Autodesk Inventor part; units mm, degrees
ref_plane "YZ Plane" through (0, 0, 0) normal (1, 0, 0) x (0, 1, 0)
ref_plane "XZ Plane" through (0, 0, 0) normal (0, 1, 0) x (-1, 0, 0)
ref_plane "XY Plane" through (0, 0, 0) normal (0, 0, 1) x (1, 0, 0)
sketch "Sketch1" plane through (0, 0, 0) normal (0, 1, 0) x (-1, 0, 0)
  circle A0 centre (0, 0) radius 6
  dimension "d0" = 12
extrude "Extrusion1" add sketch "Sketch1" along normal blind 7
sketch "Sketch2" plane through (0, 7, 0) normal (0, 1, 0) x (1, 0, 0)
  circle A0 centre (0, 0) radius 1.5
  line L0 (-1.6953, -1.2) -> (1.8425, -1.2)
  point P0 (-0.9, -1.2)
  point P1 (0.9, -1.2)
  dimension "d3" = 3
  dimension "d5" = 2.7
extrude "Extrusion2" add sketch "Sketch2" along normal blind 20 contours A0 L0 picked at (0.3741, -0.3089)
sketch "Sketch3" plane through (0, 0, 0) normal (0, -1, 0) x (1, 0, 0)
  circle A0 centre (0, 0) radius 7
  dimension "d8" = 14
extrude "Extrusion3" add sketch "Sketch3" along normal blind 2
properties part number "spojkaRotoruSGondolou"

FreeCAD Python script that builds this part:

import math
import FreeCAD as App
import Part
import Sketcher

V = App.Vector

doc = App.newDocument("Part")
body = doc.addObject("PartDesign::Body", "Body")

# Sketch on XZ plane
sketch1 = doc.addObject("Sketcher::SketchObject", "Sketch")
body.addObject(sketch1)
sketch1.AttachmentSupport = (doc.XZ_Plane, [""])
sketch1.MapMode = "FlatFace"
sketch1.addGeometry(Part.Circle(V(0, 0, 0), V(0, 0, 1), 6), False)
sketch1.addConstraint(Sketcher.Constraint("Coincident", 0, 3, -1, 1))
sketch1.addConstraint(Sketcher.Constraint("Diameter", 0, 12.0))
pad1 = doc.addObject("PartDesign::Pad", "Pad")
body.addObject(pad1)
pad1.Profile = sketch1
pad1.Length = 7
pad1.Reversed = True

# Sketch on XZ plane
sketch2 = doc.addObject("Sketcher::SketchObject", "Sketch001")
body.addObject(sketch2)
sketch2.AttachmentSupport = (doc.XZ_Plane, [""])
sketch2.MapMode = "FlatFace"
sketch2.AttachmentOffset = App.Placement(V(0, 0, -7), App.Rotation())
sketch2.addGeometry(Part.ArcOfCircle(Part.Circle(V(0, 0, 0), V(0, 0, 1), 1.5), math.radians(127), math.radians(413)), False)
sketch2.addGeometry(Part.LineSegment(V(-0.9, 1.2, 0), V(0.9, 1.2, 0)), False)
sketch2.addConstraint(Sketcher.Constraint("Coincident", 0, 1, 1, 1))
sketch2.addConstraint(Sketcher.Constraint("Coincident", 1, 2, 0, 2))
sketch2.addConstraint(Sketcher.Constraint("Horizontal", 1))
sketch2.addConstraint(Sketcher.Constraint("Coincident", 0, 3, -1, 1))
sketch2.addConstraint(Sketcher.Constraint("Radius", 0, 1.5))
sketch2.addConstraint(Sketcher.Constraint("DistanceX", 1, 1, 1, 2, 1.8))
pad2 = doc.addObject("PartDesign::Pad", "Pad001")
body.addObject(pad2)
pad2.Profile = sketch2
pad2.Length = 20
pad2.Reversed = True

# Sketch on XZ plane
sketch3 = doc.addObject("Sketcher::SketchObject", "Sketch002")
body.addObject(sketch3)
sketch3.AttachmentSupport = (doc.XZ_Plane, [""])
sketch3.MapMode = "FlatFace"
sketch3.addGeometry(Part.Circle(V(0, 0, 0), V(0, 0, 1), 7), False)
sketch3.addConstraint(Sketcher.Constraint("Coincident", 0, 3, -1, 1))
sketch3.addConstraint(Sketcher.Constraint("Diameter", 0, 14.0))
pad3 = doc.addObject("PartDesign::Pad", "Pad002")
body.addObject(pad3)
pad3.Profile = sketch3
pad3.Length = 2

doc.recompute()
